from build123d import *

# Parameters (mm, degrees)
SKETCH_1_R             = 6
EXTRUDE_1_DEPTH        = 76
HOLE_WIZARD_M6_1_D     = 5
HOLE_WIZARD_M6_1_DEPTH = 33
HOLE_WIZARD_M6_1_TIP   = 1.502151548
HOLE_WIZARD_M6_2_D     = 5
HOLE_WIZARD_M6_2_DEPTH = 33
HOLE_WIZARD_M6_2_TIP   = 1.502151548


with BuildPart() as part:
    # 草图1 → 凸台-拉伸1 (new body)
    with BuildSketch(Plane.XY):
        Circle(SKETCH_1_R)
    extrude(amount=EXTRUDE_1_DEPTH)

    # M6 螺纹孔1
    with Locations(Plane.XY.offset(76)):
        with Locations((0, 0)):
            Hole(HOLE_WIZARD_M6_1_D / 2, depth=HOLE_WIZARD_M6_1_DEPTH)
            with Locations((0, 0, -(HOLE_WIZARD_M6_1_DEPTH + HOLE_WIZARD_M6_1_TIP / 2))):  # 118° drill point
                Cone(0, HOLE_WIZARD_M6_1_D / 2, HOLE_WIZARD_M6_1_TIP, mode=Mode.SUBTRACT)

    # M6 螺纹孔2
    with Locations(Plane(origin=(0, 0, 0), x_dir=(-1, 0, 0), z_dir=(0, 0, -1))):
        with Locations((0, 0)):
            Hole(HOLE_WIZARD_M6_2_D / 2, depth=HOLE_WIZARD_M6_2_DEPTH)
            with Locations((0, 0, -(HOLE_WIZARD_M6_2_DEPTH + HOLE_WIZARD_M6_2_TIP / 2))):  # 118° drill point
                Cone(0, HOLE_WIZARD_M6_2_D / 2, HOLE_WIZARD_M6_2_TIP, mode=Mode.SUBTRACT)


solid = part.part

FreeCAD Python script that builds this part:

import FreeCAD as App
import Part
import Sketcher
from FreeCAD import Vector

doc = App.newDocument("Part")
body = doc.addObject("PartDesign::Body", "Body")

# Sketch on XY plane
sketch1 = body.newObject("Sketcher::SketchObject", "Sketch")
sketch1.AttachmentSupport = (doc.getObject("XY_Plane"), [""])
sketch1.MapMode = "FlatFace"
sketch1.addGeometry(Part.Circle(Vector(0, 0, 0), Vector(0, 0, 1), 6), False)
sketch1.addConstraint([
    Sketcher.Constraint("Coincident", 0, 3, -1, 1),
    Sketcher.Constraint("Diameter", 0, 12.0),
])
pad1 = body.newObject("PartDesign::Pad", "Pad")
pad1.Profile = sketch1
pad1.Length = 76

# Sketch on XY plane
sketch2 = body.newObject("Sketcher::SketchObject", "Sketch001")
sketch2.AttachmentSupport = (doc.getObject("XY_Plane"), [""])
sketch2.MapMode = "FlatFace"
sketch2.AttachmentOffset = App.Placement(Vector(0, 0, 76), App.Rotation())
sketch2.addGeometry(Part.Circle(Vector(0, 0, 0), Vector(0, 0, 1), 2.5), False)
sketch2.addConstraint([
    Sketcher.Constraint("Coincident", 0, 3, -1, 1),
    Sketcher.Constraint("Diameter", 0, 5.0),
])
doc.recompute()
hole = body.newObject("PartDesign::Hole", "Hole")
hole.Profile = sketch2
hole.ThreadType = "None"
hole.Diameter = 5
hole.DepthType = "Dimension"
hole.Depth = 33
hole.DrillPoint = "Angled"
hole.DrillPointAngle = 118

# Sketch on XY plane
sketch3 = body.newObject("Sketcher::SketchObject", "Sketch002")
sketch3.AttachmentSupport = (doc.getObject("XY_Plane"), [""])
sketch3.MapMode = "FlatFace"
sketch3.addGeometry(Part.Circle(Vector(0, 0, 0), Vector(0, 0, 1), 2.5), False)
sketch3.addConstraint([
    Sketcher.Constraint("Coincident", 0, 3, -1, 1),
    Sketcher.Constraint("Diameter", 0, 5.0),
])
doc.recompute()
hole2 = body.newObject("PartDesign::Hole", "Hole001")
hole2.Profile = sketch3
hole2.ThreadType = "None"
hole2.Diameter = 5
hole2.DepthType = "Dimension"
hole2.Depth = 33
hole2.DrillPoint = "Angled"
hole2.DrillPointAngle = 118
hole2.Reversed = True

doc.recompute()
